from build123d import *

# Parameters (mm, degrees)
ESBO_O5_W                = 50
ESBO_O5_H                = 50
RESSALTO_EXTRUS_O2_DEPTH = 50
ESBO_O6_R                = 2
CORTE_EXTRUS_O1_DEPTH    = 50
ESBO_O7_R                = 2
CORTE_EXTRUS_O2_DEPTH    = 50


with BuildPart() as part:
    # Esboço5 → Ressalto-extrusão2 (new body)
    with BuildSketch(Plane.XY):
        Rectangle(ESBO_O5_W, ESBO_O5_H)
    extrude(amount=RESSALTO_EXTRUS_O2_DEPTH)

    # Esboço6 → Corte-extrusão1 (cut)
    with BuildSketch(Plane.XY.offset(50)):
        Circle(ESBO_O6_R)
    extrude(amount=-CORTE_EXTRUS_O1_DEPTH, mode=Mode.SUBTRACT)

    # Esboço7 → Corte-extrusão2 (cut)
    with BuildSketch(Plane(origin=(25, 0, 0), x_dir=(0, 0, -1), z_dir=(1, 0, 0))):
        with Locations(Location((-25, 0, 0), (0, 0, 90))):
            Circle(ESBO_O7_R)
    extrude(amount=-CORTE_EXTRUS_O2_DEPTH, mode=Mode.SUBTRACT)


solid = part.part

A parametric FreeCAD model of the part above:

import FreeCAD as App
import Part
import Sketcher
from FreeCAD import Vector


def add_polygon(sketch, points):
    """Adds a closed chain of lines whose ends are joined by coincident constraints."""
    first, n = sketch.GeometryCount, len(points)
    for a, b in zip(points, points[1:] + points[:1]):
        sketch.addGeometry(Part.LineSegment(App.Vector(*a, 0), App.Vector(*b, 0)), False)
    for i in range(n):
        sketch.addConstraint(Sketcher.Constraint("Coincident", first + i, 2, first + (i + 1) % n, 1))

doc = App.newDocument("Part")
params = doc.addObject("Spreadsheet::Sheet", "Params")
for row, (alias, value) in enumerate([
    ("sketch1_width", "50 mm"),
    ("pad1_length", "50 mm"),
    ("sketch2_diameter", "4 mm"),
    ("pocket1_length", "50 mm"),
    ("sketch3_diameter", "4 mm"),
    ("pocket2_length", "50 mm"),
], start=1):
    params.set(f"A{row}", alias)
    params.set(f"B{row}", "=" + value)
    params.setAlias(f"B{row}", alias)

body = doc.addObject("PartDesign::Body", "Body")

# Sketch on XY plane
sketch1 = body.newObject("Sketcher::SketchObject", "Sketch")
sketch1.AttachmentSupport = (doc.getObject("XY_Plane"), [""])
sketch1.MapMode = "FlatFace"
add_polygon(sketch1, [(-25, 25), (-25, -25), (25, -25), (25, 25)])  # lines 0-3
sketch1.addConstraint([
    Sketcher.Constraint("Vertical", 0),
    Sketcher.Constraint("Horizontal", 1),
    Sketcher.Constraint("Vertical", 2),
    Sketcher.Constraint("Horizontal", 3),
    Sketcher.Constraint("Symmetric", 0, 2, 2, 2, -1, 1),
    Sketcher.Constraint("Equal", 3, 0),
    Sketcher.Constraint("DistanceX", 1, 1, 1, 2, 50.0),
])
sketch1.setExpression("Constraints[10]", "Params.sketch1_width")
pad1 = body.newObject("PartDesign::Pad", "Pad")
pad1.Profile = sketch1
pad1.setExpression("Length", "Params.pad1_length")

# Sketch on XY plane
sketch2 = body.newObject("Sketcher::SketchObject", "Sketch001")
sketch2.AttachmentSupport = (doc.getObject("XY_Plane"), [""])
sketch2.MapMode = "FlatFace"
sketch2.AttachmentOffset = App.Placement(Vector(0, 0, 50), App.Rotation())
sketch2.addGeometry(Part.Circle(Vector(0, 0, 0), Vector(0, 0, 1), 2), False)
sketch2.addConstraint([
    Sketcher.Constraint("Coincident", 0, 3, -1, 1),
    Sketcher.Constraint("Diameter", 0, 4.0),
])
sketch2.setExpression("Constraints[1]", "Params.sketch2_diameter")
pocket1 = body.newObject("PartDesign::Pocket", "Pocket")
pocket1.Profile = sketch2
pocket1.setExpression("Length", "Params.pocket1_length")

# Sketch on YZ plane
sketch3 = body.newObject("Sketcher::SketchObject", "Sketch002")
sketch3.AttachmentSupport = (doc.getObject("YZ_Plane"), [""])
sketch3.MapMode = "FlatFace"
sketch3.AttachmentOffset = App.Placement(Vector(0, 0, 25), App.Rotation())
sketch3.addGeometry(Part.Circle(Vector(0, 25, 0), Vector(0, 0, 1), 2), False)
sketch3.addConstraint([
    Sketcher.Constraint("PointOnObject", 0, 3, -2),
    Sketcher.Constraint("Diameter", 0, 4.0),
    Sketcher.Constraint("DistanceY", -1, 1, 0, 3, 25.0),
])
sketch3.setExpression("Constraints[1]", "Params.sketch3_diameter")
pocket2 = body.newObject("PartDesign::Pocket", "Pocket001")
pocket2.Profile = sketch3
pocket2.setExpression("Length", "Params.pocket2_length")

doc.recompute()
